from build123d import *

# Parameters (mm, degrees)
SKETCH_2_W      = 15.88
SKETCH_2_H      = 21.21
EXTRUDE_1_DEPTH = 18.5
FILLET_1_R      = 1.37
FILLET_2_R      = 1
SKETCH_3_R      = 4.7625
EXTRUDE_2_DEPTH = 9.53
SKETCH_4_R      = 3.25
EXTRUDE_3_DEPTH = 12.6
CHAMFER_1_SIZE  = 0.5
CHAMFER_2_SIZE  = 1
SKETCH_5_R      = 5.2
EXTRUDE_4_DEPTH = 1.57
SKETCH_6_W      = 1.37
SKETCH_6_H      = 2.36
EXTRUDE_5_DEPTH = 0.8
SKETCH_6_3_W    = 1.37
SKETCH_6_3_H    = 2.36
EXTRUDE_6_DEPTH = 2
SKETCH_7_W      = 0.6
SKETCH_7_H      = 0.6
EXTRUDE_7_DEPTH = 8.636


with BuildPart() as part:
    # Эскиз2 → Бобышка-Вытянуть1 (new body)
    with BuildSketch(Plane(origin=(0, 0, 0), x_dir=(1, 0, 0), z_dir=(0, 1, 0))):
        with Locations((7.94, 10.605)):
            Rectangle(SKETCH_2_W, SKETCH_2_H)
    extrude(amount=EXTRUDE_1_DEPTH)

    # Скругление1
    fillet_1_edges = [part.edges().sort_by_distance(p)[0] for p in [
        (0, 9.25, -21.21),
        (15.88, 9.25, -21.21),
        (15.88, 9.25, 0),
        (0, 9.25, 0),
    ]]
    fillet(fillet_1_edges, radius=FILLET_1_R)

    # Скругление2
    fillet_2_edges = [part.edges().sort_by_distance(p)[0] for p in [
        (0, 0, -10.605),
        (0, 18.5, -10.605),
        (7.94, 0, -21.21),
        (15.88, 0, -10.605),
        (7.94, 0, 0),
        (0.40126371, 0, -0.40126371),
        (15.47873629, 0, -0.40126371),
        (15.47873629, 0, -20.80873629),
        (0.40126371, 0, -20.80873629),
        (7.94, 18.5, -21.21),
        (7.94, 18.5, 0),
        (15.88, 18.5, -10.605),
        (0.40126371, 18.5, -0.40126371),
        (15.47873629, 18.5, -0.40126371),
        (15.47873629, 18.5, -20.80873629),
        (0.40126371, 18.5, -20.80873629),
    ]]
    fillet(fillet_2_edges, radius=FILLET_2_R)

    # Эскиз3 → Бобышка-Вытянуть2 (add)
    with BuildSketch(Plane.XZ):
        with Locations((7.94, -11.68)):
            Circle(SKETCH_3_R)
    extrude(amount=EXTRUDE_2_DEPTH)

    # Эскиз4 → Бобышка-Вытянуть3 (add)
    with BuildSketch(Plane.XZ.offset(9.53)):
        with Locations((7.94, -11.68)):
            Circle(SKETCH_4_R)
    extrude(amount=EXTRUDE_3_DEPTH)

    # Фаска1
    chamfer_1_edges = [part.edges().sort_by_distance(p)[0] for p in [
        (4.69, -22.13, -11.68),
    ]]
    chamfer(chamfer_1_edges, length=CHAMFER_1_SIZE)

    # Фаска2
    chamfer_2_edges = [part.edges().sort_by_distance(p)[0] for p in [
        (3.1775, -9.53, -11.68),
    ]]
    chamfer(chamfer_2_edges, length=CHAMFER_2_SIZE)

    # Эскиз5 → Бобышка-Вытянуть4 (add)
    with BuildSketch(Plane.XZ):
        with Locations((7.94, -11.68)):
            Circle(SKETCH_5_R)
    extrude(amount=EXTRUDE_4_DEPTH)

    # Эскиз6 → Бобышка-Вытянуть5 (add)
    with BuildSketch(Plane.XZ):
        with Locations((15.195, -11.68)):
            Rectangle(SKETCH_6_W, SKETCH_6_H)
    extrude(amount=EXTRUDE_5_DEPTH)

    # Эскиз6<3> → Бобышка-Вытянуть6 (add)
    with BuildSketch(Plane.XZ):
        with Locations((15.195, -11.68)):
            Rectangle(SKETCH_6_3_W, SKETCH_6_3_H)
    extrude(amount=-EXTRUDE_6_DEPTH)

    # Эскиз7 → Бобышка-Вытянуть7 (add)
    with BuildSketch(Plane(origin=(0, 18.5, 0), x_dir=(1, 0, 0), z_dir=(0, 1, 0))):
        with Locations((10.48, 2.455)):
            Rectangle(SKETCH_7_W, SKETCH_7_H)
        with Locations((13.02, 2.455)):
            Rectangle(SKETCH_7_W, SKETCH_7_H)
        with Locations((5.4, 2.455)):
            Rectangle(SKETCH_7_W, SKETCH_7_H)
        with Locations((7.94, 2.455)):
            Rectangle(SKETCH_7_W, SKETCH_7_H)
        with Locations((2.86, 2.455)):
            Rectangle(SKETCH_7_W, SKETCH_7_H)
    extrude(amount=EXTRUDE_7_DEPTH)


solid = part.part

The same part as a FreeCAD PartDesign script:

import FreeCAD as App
import Part
import Sketcher
from FreeCAD import Vector
Q = App.Units.Quantity


def edges_at(feature, points):
    """Names of the edges that pass closest to the given points."""
    edges = feature.Shape.Edges
    near = lambda p: min(range(len(edges)), key=lambda i: edges[i].distToShape(Part.Vertex(*p))[0])
    return sorted({f"Edge{near(p) + 1}" for p in points})


def add_polygon(sketch, points):
    """Adds a closed chain of lines whose ends are joined by coincident constraints."""
    first, n = sketch.GeometryCount, len(points)
    for a, b in zip(points, points[1:] + points[:1]):
        sketch.addGeometry(Part.LineSegment(App.Vector(*a, 0), App.Vector(*b, 0)), False)
    for i in range(n):
        sketch.addConstraint(Sketcher.Constraint("Coincident", first + i, 2, first + (i + 1) % n, 1))

doc = App.newDocument("Part")
body = doc.addObject("PartDesign::Body", "Body")

sketch1 = body.newObject("Sketcher::SketchObject", "Sketch")
sketch1.AttachmentSupport = (doc.getObject("XZ_Plane"), [""])
sketch1.MapMode = "FlatFace"
add_polygon(sketch1, [(0, -21.21), (0, 0), (15.88, 0), (15.88, -21.21)])
sketch1.addConstraint([
    Sketcher.Constraint("Vertical", 0),
    Sketcher.Constraint("Horizontal", 1),
    Sketcher.Constraint("Vertical", 2),
    Sketcher.Constraint("Horizontal", 3),
    Sketcher.Constraint("Coincident", 0, 2, -1, 1),
    Sketcher.Constraint("DistanceX", 1, 1, 1, 2, Q("15.88 mm")),
    Sketcher.Constraint("DistanceY", 0, 1, 0, 2, Q("21.21 mm")),
])
pad1 = body.newObject("PartDesign::Pad", "Pad")
pad1.Profile = sketch1
pad1.Length = 18.5
pad1.Reversed = True
doc.recompute()

fillet = body.newObject("PartDesign::Fillet", "Fillet")
fillet.Base = (pad1, edges_at(pad1, [
    (0, 9.25, -21.21),
    (15.88, 9.25, -21.21),
    (15.88, 9.25, 0),
    (0, 9.25, 0),
]))
fillet.Radius = 1.37
doc.recompute()

fillet2 = body.newObject("PartDesign::Fillet", "Fillet001")
fillet2.Base = (fillet, edges_at(fillet, [
    (0, 0, -10.605),
    (0, 18.5, -10.605),
    (7.94, 0, -21.21),
    (15.88, 0, -10.605),
    (7.94, 0, 0),
    (0.401, 0, -0.401),
    (15.479, 0, -0.401),
    (15.479, 0, -20.809),
    (0.401, 0, -20.809),
    (7.94, 18.5, -21.21),
    (7.94, 18.5, 0),
    (15.88, 18.5, -10.605),
    (0.401, 18.5, -0.401),
    (15.479, 18.5, -0.401),
    (15.479, 18.5, -20.809),
    (0.401, 18.5, -20.809),
]))
fillet2.Radius = 1

sketch2 = body.newObject("Sketcher::SketchObject", "Sketch001")
sketch2.AttachmentSupport = (doc.getObject("XZ_Plane"), [""])
sketch2.MapMode = "FlatFace"
sketch2.addGeometry(Part.Circle(Vector(7.94, -11.68, 0), Vector(0, 0, 1), 4.7625), False)
sketch2.addConstraint([
    Sketcher.Constraint("Diameter", 0, Q("9.525 mm")),
    Sketcher.Constraint("DistanceX", -1, 1, 0, 3, Q("7.94 mm")),
    Sketcher.Constraint("DistanceY", 0, 3, -1, 1, Q("11.68 mm")),
])
pad2 = body.newObject("PartDesign::Pad", "Pad001")
pad2.Profile = sketch2
pad2.Length = 9.53

sketch3 = body.newObject("Sketcher::SketchObject", "Sketch002")
sketch3.AttachmentSupport = (doc.getObject("XZ_Plane"), [""])
sketch3.MapMode = "FlatFace"
sketch3.AttachmentOffset = App.Placement(Vector(0, 0, 9.53), App.Rotation())
sketch3.addGeometry(Part.Circle(Vector(7.94, -11.68, 0), Vector(0, 0, 1), 3.25), False)
sketch3.addConstraint([
    Sketcher.Constraint("Diameter", 0, Q("6.5 mm")),
    Sketcher.Constraint("DistanceX", -1, 1, 0, 3, Q("7.94 mm")),
    Sketcher.Constraint("DistanceY", 0, 3, -1, 1, Q("11.68 mm")),
])
pad3 = body.newObject("PartDesign::Pad", "Pad002")
pad3.Profile = sketch3
pad3.Length = 12.6
doc.recompute()

chamfer = body.newObject("PartDesign::Chamfer", "Chamfer")
chamfer.Base = (pad3, edges_at(pad3, [(4.69, -22.13, -11.68)]))
chamfer.Size = 0.5
doc.recompute()

chamfer2 = body.newObject("PartDesign::Chamfer", "Chamfer001")
chamfer2.Base = (chamfer, edges_at(chamfer, [(3.178, -9.53, -11.68)]))
chamfer2.Size = 1

sketch4 = body.newObject("Sketcher::SketchObject", "Sketch003")
sketch4.AttachmentSupport = (doc.getObject("XZ_Plane"), [""])
sketch4.MapMode = "FlatFace"
sketch4.addGeometry(Part.Circle(Vector(7.94, -11.68, 0), Vector(0, 0, 1), 5.2), False)
sketch4.addConstraint([
    Sketcher.Constraint("Diameter", 0, Q("10.4 mm")),
    Sketcher.Constraint("DistanceX", -1, 1, 0, 3, Q("7.94 mm")),
    Sketcher.Constraint("DistanceY", 0, 3, -1, 1, Q("11.68 mm")),
])
pad4 = body.newObject("PartDesign::Pad", "Pad003")
pad4.Profile = sketch4
pad4.Length = 1.57

sketch5 = body.newObject("Sketcher::SketchObject", "Sketch004")
sketch5.AttachmentSupport = (doc.getObject("XZ_Plane"), [""])
sketch5.MapMode = "FlatFace"
add_polygon(sketch5, [(14.51, -10.5), (14.51, -12.86), (15.88, -12.86), (15.88, -10.5)])
sketch5.addConstraint([
    Sketcher.Constraint("Vertical", 0),
    Sketcher.Constraint("Horizontal", 1),
    Sketcher.Constraint("Vertical", 2),
    Sketcher.Constraint("Horizontal", 3),
    Sketcher.Constraint("DistanceX", 1, 1, 1, 2, Q("1.37 mm")),
    Sketcher.Constraint("DistanceY", 0, 2, 0, 1, Q("2.36 mm")),
    Sketcher.Constraint("DistanceY", 2, 2, -1, 1, Q("10.5 mm")),
    Sketcher.Constraint("DistanceX", -1, 1, 0, 2, Q("14.51 mm")),
])
pad5 = body.newObject("PartDesign::Pad", "Pad004")
pad5.Profile = sketch5
pad5.Length = 0.8

sketch6 = body.newObject("Sketcher::SketchObject", "Sketch005")
sketch6.AttachmentSupport = (doc.getObject("XZ_Plane"), [""])
sketch6.MapMode = "FlatFace"
add_polygon(sketch6, [(14.51, -10.5), (14.51, -12.86), (15.88, -12.86), (15.88, -10.5)])
sketch6.addConstraint([
    Sketcher.Constraint("Vertical", 0),
    Sketcher.Constraint("Horizontal", 1),
    Sketcher.Constraint("Vertical", 2),
    Sketcher.Constraint("Horizontal", 3),
    Sketcher.Constraint("DistanceX", 1, 1, 1, 2, Q("1.37 mm")),
    Sketcher.Constraint("DistanceY", 0, 2, 0, 1, Q("2.36 mm")),
    Sketcher.Constraint("DistanceY", 2, 2, -1, 1, Q("10.5 mm")),
    Sketcher.Constraint("DistanceX", -1, 1, 0, 2, Q("14.51 mm")),
])
pad6 = body.newObject("PartDesign::Pad", "Pad005")
pad6.Profile = sketch6
pad6.Length = 2
pad6.Reversed = True

sketch7 = body.newObject("Sketcher::SketchObject", "Sketch006")
sketch7.AttachmentSupport = (doc.getObject("XZ_Plane"), [""])
sketch7.MapMode = "FlatFace"
sketch7.AttachmentOffset = App.Placement(Vector(0, 0, -18.5), App.Rotation())
add_polygon(sketch7, [(10.18, -2.755), (10.18, -2.155), (10.78, -2.155), (10.78, -2.755)])
add_polygon(sketch7, [(12.72, -2.755), (12.72, -2.155), (13.32, -2.155), (13.32, -2.755)])
add_polygon(sketch7, [(5.1, -2.755), (5.1, -2.155), (5.7, -2.155), (5.7, -2.755)])
add_polygon(sketch7, [(7.64, -2.755), (7.64, -2.155), (8.24, -2.155), (8.24, -2.755)])
add_polygon(sketch7, [(2.56, -2.755), (2.56, -2.155), (3.16, -2.155), (3.16, -2.755)])
sketch7.addConstraint([
    Sketcher.Constraint("Vertical", 0),
    Sketcher.Constraint("Horizontal", 1),
    Sketcher.Constraint("Vertical", 2),
    Sketcher.Constraint("Horizontal", 3),
    Sketcher.Constraint("Vertical", 4),
    Sketcher.Constraint("Horizontal", 5),
    Sketcher.Constraint("Vertical", 6),
    Sketcher.Constraint("Horizontal", 7),
    Sketcher.Constraint("Vertical", 8),
    Sketcher.Constraint("Horizontal", 9),
    Sketcher.Constraint("Vertical", 10),
    Sketcher.Constraint("Horizontal", 11),
    Sketcher.Constraint("Vertical", 12),
    Sketcher.Constraint("Horizontal", 13),
    Sketcher.Constraint("Vertical", 14),
    Sketcher.Constraint("Horizontal", 15),
    Sketcher.Constraint("Vertical", 16),
    Sketcher.Constraint("Horizontal", 17),
    Sketcher.Constraint("Vertical", 18),
    Sketcher.Constraint("Horizontal", 19),
    Sketcher.Constraint("Horizontal", 1, 2, 4, 2),
    Sketcher.Constraint("Horizontal", 3, 2, 6, 2),
    Sketcher.Constraint("Horizontal", 5, 2, 8, 2),
    Sketcher.Constraint("Horizontal", 7, 2, 10, 2),
    Sketcher.Constraint("Horizontal", 9, 2, 12, 2),
    Sketcher.Constraint("Horizontal", 11, 2, 14, 2),
    Sketcher.Constraint("Horizontal", 13, 2, 16, 2),
    Sketcher.Constraint("Horizontal", 15, 2, 18, 2),
    Sketcher.Constraint("Equal", 3, 5),
    Sketcher.Constraint("Equal", 7, 9),
    Sketcher.Constraint("Equal", 11, 13),
    Sketcher.Constraint("Equal", 15, 17),
    Sketcher.Constraint("Equal", 19, 0),
    Sketcher.Constraint("DistanceX", 1, 1, 1, 2, Q("0.6 mm")),
    Sketcher.Constraint("DistanceX", -1, 1, 8, 2, Q("5.1 mm")),
    Sketcher.Constraint("DistanceX", -1, 1, 0, 2, Q("10.18 mm")),
    Sketcher.Constraint("DistanceX", -1, 1, 4, 2, Q("12.72 mm")),
    Sketcher.Constraint("DistanceX", -1, 1, 12, 2, Q("7.64 mm")),
    Sketcher.Constraint("DistanceX", -1, 1, 16, 2, Q("2.56 mm")),
    Sketcher.Constraint("DistanceY", 0, 2, -1, 1, Q("2.155 mm")),
])
pad7 = body.newObject("PartDesign::Pad", "Pad006")
pad7.Profile = sketch7
pad7.Length = 8.636
pad7.Reversed = True

doc.recompute()
